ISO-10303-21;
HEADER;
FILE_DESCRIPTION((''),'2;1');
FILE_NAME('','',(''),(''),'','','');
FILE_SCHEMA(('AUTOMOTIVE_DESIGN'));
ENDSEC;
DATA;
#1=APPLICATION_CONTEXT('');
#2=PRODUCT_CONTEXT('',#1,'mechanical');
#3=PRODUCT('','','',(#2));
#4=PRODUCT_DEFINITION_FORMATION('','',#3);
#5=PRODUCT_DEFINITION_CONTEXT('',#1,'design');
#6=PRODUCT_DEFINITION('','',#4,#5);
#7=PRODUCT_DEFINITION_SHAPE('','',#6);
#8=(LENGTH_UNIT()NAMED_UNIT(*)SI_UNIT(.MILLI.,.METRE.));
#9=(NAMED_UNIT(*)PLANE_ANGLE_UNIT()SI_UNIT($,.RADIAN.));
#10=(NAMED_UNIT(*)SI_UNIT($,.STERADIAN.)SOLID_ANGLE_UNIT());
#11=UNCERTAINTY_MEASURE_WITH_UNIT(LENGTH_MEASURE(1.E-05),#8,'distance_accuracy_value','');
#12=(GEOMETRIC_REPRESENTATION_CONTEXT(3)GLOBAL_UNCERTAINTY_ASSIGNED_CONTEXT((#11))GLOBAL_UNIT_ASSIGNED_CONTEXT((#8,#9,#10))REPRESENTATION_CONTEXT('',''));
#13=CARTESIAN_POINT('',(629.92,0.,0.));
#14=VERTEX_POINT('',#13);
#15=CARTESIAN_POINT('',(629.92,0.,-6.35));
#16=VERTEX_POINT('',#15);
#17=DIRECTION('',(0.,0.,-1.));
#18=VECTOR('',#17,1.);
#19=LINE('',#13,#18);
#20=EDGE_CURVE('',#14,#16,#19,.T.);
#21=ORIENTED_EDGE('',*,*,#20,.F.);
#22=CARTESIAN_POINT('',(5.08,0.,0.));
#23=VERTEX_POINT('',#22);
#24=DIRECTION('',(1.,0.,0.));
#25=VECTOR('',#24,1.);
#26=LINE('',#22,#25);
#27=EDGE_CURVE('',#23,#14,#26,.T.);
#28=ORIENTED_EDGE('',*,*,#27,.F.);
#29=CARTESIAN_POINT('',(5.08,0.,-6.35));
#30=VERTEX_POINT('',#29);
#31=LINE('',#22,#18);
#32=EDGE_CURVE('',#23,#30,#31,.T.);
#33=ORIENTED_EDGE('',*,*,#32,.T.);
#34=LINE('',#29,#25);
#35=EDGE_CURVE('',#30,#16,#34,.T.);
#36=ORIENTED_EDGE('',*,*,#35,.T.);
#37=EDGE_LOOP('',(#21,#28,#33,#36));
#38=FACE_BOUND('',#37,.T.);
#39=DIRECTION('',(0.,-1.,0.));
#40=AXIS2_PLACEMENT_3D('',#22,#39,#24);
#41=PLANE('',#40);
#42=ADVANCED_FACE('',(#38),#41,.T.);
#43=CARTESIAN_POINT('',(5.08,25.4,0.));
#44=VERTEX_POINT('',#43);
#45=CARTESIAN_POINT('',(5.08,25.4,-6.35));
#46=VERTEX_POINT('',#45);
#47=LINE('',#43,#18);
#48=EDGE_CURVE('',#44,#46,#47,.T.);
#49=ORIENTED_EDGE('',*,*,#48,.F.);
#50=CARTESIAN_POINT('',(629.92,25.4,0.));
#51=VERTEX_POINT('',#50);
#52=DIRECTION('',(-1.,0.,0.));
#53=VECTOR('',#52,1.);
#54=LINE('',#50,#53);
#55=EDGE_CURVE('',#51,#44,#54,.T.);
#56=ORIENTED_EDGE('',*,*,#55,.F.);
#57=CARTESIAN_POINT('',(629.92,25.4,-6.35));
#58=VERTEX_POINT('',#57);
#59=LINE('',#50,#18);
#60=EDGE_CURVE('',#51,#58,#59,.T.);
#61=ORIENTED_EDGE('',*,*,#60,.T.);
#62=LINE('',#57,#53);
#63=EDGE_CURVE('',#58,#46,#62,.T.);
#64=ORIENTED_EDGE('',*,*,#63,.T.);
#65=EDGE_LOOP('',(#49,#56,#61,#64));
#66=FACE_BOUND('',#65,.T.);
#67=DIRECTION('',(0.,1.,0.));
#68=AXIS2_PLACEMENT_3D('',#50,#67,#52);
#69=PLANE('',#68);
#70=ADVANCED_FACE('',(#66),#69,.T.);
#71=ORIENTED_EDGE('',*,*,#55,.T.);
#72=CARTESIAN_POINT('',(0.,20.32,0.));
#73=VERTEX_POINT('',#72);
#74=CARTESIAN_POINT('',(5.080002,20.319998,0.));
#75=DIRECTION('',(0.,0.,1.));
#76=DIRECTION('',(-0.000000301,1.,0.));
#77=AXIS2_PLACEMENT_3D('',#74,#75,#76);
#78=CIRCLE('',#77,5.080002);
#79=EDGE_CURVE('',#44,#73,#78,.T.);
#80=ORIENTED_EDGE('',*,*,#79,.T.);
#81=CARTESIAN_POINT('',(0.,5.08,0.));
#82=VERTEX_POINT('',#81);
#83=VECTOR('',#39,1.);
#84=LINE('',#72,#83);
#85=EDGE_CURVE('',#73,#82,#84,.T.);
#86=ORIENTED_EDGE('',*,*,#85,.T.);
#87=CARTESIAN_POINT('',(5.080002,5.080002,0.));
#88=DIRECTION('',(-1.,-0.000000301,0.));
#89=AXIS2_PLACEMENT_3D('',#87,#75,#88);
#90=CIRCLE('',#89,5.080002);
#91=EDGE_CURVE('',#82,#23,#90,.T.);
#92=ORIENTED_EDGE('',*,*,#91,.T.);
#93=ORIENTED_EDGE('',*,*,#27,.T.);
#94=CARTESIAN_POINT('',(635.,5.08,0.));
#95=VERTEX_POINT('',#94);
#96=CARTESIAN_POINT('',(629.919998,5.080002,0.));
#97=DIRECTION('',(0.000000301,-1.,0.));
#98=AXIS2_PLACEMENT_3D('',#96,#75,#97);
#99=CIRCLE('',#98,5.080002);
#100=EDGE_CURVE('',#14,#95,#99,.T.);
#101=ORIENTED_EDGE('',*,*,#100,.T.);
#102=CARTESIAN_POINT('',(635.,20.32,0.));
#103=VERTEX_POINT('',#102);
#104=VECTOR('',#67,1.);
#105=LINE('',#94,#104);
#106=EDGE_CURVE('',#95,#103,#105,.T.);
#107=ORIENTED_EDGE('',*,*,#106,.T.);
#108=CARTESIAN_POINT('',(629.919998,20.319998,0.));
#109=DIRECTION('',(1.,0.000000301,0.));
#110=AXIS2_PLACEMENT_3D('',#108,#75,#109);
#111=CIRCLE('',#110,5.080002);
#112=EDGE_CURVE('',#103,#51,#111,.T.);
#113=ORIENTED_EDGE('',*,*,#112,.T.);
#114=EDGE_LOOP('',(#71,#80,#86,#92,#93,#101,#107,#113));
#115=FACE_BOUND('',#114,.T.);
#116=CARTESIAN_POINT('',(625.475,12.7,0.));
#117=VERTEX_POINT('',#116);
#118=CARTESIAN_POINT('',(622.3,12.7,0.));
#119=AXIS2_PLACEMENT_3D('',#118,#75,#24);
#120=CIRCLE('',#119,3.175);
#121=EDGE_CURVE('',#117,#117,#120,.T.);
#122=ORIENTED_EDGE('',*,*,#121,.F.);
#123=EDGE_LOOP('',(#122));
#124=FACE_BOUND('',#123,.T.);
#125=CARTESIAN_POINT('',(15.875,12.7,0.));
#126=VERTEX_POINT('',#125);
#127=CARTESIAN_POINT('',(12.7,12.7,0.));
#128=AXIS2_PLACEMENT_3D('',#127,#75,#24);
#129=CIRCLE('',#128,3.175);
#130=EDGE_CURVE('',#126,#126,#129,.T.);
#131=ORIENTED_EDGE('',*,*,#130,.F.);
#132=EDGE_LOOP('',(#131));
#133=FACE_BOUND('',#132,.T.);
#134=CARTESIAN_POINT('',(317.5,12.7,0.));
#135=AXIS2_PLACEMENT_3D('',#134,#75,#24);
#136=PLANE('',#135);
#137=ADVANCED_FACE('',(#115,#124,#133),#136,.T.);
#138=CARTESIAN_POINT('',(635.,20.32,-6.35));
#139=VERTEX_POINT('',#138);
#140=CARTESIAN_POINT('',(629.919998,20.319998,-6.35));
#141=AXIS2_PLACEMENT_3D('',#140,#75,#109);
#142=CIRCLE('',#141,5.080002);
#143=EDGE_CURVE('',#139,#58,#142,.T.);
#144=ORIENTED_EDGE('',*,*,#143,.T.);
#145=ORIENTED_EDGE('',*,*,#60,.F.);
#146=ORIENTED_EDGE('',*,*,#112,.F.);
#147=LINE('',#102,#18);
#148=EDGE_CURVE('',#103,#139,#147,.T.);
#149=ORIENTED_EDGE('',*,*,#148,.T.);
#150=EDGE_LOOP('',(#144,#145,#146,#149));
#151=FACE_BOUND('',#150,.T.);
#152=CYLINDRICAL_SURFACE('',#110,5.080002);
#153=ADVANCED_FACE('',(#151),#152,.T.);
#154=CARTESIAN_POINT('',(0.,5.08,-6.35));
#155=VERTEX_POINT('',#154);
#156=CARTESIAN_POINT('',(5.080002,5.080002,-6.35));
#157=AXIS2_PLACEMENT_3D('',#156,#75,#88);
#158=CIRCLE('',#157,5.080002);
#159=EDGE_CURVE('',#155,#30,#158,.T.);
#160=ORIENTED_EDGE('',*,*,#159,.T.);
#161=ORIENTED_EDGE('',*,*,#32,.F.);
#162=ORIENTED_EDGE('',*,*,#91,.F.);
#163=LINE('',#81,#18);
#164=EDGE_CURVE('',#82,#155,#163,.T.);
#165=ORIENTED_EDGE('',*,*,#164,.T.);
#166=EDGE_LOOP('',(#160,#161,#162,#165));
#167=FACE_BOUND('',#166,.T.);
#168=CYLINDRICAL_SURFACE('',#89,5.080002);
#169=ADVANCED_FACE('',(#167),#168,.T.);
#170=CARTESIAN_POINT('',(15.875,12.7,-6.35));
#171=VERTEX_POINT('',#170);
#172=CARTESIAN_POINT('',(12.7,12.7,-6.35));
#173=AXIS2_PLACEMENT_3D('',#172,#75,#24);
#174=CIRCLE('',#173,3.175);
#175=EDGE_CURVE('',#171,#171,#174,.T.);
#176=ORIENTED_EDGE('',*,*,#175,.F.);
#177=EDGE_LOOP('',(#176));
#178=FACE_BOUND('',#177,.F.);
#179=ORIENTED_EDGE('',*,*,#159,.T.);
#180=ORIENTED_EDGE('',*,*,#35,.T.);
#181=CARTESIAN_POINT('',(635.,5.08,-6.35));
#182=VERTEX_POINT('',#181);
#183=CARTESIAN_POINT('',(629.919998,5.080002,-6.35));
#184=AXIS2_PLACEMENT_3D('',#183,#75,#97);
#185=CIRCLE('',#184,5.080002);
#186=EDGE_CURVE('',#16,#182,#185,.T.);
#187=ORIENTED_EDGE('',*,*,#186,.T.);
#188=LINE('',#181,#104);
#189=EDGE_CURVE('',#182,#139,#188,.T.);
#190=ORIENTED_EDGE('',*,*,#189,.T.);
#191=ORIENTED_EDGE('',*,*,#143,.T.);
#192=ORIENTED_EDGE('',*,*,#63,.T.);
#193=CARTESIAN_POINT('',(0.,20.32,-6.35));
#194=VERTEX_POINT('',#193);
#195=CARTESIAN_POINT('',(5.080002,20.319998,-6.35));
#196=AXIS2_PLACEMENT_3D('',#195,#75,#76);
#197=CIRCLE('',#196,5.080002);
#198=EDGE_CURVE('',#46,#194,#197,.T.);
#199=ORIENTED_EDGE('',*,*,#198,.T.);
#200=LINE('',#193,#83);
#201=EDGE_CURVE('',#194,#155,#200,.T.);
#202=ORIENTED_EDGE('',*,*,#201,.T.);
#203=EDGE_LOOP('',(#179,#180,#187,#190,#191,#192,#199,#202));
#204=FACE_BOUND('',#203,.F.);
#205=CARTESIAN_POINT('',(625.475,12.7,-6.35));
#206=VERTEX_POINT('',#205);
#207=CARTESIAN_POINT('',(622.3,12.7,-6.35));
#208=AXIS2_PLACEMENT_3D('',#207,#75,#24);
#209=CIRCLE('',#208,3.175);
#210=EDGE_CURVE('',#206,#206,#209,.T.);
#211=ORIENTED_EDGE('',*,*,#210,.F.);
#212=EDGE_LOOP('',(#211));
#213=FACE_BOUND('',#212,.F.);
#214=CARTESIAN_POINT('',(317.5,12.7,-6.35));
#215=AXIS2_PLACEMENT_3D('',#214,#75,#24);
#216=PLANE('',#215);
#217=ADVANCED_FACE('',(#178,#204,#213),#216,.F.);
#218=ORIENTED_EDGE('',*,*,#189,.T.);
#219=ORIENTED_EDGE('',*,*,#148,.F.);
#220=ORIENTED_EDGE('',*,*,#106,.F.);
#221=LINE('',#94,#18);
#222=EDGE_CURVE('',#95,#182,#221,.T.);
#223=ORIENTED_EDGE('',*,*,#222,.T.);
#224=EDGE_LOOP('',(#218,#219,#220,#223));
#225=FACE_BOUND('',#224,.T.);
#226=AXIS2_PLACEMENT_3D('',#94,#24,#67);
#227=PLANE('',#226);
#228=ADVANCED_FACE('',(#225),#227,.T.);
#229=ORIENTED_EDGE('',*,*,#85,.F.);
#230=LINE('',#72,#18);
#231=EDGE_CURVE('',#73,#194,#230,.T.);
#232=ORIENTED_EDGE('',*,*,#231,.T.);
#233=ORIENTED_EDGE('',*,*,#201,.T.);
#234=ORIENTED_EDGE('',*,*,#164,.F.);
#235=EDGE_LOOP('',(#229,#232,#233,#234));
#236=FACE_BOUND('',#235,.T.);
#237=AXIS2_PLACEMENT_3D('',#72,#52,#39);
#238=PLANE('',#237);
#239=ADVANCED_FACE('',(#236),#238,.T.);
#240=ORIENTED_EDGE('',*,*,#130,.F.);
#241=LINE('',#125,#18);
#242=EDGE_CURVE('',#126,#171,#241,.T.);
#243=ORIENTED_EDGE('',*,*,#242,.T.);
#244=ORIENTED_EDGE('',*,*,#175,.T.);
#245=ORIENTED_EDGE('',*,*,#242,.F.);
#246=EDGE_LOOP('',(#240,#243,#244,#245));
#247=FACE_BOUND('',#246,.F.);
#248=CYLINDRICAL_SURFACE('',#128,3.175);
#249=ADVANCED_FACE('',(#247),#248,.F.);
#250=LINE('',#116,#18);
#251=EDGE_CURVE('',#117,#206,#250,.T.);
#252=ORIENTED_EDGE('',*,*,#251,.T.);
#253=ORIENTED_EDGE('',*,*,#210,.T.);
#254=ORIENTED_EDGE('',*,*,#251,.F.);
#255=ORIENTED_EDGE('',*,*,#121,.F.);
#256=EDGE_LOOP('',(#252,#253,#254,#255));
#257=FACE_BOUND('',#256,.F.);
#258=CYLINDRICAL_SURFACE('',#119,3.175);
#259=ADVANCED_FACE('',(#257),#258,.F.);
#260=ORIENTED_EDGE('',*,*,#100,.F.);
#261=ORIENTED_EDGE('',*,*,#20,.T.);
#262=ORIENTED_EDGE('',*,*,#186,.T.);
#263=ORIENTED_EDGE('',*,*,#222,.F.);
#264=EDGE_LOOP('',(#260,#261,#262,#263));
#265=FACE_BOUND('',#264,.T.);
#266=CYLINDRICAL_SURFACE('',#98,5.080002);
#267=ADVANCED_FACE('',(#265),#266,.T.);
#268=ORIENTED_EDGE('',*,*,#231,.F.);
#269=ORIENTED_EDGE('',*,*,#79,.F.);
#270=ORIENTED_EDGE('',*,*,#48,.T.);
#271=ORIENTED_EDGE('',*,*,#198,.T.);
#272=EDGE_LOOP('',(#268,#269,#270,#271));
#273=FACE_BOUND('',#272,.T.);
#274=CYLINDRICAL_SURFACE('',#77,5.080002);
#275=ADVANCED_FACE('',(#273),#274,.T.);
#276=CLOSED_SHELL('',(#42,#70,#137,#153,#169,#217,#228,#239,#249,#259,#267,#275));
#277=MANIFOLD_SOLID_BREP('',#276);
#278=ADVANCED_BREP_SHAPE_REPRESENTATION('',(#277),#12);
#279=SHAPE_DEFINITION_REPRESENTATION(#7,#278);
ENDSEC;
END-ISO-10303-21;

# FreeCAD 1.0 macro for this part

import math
import FreeCAD as App
import Part
import Sketcher
from FreeCAD import Vector
Q = App.Units.Quantity

doc = App.newDocument("Part")
body = doc.addObject("PartDesign::Body", "Body")

sketch1 = doc.addObject("Sketcher::SketchObject", "Sketch")
body.addObject(sketch1)
sketch1.AttachmentSupport = (doc.XY_Plane, [""])
sketch1.MapMode = "FlatFace"
sketch1.addGeometry(Part.ArcOfCircle(Part.Circle(Vector(5.1, 5.1, 0), Vector(0, 0, 1), 5.1), math.radians(-180), math.radians(-90)), False)
sketch1.addGeometry(Part.LineSegment(Vector(5.1, 0, 0), Vector(629.9, 0, 0)), False)
sketch1.addGeometry(Part.ArcOfCircle(Part.Circle(Vector(629.9, 5.1, 0), Vector(0, 0, 1), 5.1), math.radians(-90), math.radians(0)), False)
sketch1.addGeometry(Part.LineSegment(Vector(635, 5.1, 0), Vector(635, 20.3, 0)), False)
sketch1.addGeometry(Part.ArcOfCircle(Part.Circle(Vector(629.9, 20.3, 0), Vector(0, 0, 1), 5.1), math.radians(0), math.radians(90)), False)
sketch1.addGeometry(Part.LineSegment(Vector(629.9, 25.4, 0), Vector(5.1, 25.4, 0)), False)
sketch1.addGeometry(Part.ArcOfCircle(Part.Circle(Vector(5.1, 20.3, 0), Vector(0, 0, 1), 5.1), math.radians(90), math.radians(180)), False)
sketch1.addGeometry(Part.LineSegment(Vector(0, 20.3, 0), Vector(0, 5.1, 0)), False)
sketch1.addGeometry(Part.Circle(Vector(12.7, 12.7, 0), Vector(0, 0, 1), 3.2), False)
sketch1.addGeometry(Part.Circle(Vector(622.3, 12.7, 0), Vector(0, 0, 1), 3.2), False)
sketch1.addConstraint(Sketcher.Constraint("Tangent", 0, 2, 1, 1))
sketch1.addConstraint(Sketcher.Constraint("Tangent", 1, 2, 2, 1))
sketch1.addConstraint(Sketcher.Constraint("Tangent", 2, 2, 3, 1))
sketch1.addConstraint(Sketcher.Constraint("Tangent", 3, 2, 4, 1))
sketch1.addConstraint(Sketcher.Constraint("Tangent", 4, 2, 5, 1))
sketch1.addConstraint(Sketcher.Constraint("Tangent", 5, 2, 6, 1))
sketch1.addConstraint(Sketcher.Constraint("Tangent", 6, 2, 7, 1))
sketch1.addConstraint(Sketcher.Constraint("Tangent", 7, 2, 0, 1))
sketch1.addConstraint(Sketcher.Constraint("Horizontal", 1))
sketch1.addConstraint(Sketcher.Constraint("Vertical", 3))
sketch1.addConstraint(Sketcher.Constraint("Horizontal", 5))
sketch1.addConstraint(Sketcher.Constraint("Vertical", 7))
sketch1.addConstraint(Sketcher.Constraint("Equal", 0, 2))
sketch1.addConstraint(Sketcher.Constraint("Equal", 2, 4))
sketch1.addConstraint(Sketcher.Constraint("Equal", 4, 6))
sketch1.addConstraint(Sketcher.Constraint("Equal", 8, 9))
sketch1.addConstraint(Sketcher.Constraint("PointOnObject", 0, 2, -1))
sketch1.addConstraint(Sketcher.Constraint("PointOnObject", 6, 2, -2))
sketch1.addConstraint(Sketcher.Constraint("Horizontal", 8, 3, 9, 3))
sketch1.addConstraint(Sketcher.Constraint("Radius", 0, Q("0.2000001 in")))
sketch1.addConstraint(Sketcher.Constraint("Diameter", 8, Q("0.25 in")))
sketch1.addConstraint(Sketcher.Constraint("DistanceX", 1, 1, 1, 2, Q("24.6 in")))
sketch1.addConstraint(Sketcher.Constraint("DistanceY", 3, 1, 3, 2, Q("0.6 in")))
sketch1.addConstraint(Sketcher.Constraint("DistanceX", 8, 3, 9, 3, Q("24 in")))
sketch1.addConstraint(Sketcher.Constraint("DistanceX", -1, 1, 8, 3, Q("0.5 in")))
sketch1.addConstraint(Sketcher.Constraint("DistanceY", -1, 1, 8, 3, Q("0.5 in")))
pad1 = doc.addObject("PartDesign::Pad", "Pad")
body.addObject(pad1)
pad1.Profile = sketch1
pad1.Length = Q("0.25 in")
pad1.Reversed = True

doc.recompute()
